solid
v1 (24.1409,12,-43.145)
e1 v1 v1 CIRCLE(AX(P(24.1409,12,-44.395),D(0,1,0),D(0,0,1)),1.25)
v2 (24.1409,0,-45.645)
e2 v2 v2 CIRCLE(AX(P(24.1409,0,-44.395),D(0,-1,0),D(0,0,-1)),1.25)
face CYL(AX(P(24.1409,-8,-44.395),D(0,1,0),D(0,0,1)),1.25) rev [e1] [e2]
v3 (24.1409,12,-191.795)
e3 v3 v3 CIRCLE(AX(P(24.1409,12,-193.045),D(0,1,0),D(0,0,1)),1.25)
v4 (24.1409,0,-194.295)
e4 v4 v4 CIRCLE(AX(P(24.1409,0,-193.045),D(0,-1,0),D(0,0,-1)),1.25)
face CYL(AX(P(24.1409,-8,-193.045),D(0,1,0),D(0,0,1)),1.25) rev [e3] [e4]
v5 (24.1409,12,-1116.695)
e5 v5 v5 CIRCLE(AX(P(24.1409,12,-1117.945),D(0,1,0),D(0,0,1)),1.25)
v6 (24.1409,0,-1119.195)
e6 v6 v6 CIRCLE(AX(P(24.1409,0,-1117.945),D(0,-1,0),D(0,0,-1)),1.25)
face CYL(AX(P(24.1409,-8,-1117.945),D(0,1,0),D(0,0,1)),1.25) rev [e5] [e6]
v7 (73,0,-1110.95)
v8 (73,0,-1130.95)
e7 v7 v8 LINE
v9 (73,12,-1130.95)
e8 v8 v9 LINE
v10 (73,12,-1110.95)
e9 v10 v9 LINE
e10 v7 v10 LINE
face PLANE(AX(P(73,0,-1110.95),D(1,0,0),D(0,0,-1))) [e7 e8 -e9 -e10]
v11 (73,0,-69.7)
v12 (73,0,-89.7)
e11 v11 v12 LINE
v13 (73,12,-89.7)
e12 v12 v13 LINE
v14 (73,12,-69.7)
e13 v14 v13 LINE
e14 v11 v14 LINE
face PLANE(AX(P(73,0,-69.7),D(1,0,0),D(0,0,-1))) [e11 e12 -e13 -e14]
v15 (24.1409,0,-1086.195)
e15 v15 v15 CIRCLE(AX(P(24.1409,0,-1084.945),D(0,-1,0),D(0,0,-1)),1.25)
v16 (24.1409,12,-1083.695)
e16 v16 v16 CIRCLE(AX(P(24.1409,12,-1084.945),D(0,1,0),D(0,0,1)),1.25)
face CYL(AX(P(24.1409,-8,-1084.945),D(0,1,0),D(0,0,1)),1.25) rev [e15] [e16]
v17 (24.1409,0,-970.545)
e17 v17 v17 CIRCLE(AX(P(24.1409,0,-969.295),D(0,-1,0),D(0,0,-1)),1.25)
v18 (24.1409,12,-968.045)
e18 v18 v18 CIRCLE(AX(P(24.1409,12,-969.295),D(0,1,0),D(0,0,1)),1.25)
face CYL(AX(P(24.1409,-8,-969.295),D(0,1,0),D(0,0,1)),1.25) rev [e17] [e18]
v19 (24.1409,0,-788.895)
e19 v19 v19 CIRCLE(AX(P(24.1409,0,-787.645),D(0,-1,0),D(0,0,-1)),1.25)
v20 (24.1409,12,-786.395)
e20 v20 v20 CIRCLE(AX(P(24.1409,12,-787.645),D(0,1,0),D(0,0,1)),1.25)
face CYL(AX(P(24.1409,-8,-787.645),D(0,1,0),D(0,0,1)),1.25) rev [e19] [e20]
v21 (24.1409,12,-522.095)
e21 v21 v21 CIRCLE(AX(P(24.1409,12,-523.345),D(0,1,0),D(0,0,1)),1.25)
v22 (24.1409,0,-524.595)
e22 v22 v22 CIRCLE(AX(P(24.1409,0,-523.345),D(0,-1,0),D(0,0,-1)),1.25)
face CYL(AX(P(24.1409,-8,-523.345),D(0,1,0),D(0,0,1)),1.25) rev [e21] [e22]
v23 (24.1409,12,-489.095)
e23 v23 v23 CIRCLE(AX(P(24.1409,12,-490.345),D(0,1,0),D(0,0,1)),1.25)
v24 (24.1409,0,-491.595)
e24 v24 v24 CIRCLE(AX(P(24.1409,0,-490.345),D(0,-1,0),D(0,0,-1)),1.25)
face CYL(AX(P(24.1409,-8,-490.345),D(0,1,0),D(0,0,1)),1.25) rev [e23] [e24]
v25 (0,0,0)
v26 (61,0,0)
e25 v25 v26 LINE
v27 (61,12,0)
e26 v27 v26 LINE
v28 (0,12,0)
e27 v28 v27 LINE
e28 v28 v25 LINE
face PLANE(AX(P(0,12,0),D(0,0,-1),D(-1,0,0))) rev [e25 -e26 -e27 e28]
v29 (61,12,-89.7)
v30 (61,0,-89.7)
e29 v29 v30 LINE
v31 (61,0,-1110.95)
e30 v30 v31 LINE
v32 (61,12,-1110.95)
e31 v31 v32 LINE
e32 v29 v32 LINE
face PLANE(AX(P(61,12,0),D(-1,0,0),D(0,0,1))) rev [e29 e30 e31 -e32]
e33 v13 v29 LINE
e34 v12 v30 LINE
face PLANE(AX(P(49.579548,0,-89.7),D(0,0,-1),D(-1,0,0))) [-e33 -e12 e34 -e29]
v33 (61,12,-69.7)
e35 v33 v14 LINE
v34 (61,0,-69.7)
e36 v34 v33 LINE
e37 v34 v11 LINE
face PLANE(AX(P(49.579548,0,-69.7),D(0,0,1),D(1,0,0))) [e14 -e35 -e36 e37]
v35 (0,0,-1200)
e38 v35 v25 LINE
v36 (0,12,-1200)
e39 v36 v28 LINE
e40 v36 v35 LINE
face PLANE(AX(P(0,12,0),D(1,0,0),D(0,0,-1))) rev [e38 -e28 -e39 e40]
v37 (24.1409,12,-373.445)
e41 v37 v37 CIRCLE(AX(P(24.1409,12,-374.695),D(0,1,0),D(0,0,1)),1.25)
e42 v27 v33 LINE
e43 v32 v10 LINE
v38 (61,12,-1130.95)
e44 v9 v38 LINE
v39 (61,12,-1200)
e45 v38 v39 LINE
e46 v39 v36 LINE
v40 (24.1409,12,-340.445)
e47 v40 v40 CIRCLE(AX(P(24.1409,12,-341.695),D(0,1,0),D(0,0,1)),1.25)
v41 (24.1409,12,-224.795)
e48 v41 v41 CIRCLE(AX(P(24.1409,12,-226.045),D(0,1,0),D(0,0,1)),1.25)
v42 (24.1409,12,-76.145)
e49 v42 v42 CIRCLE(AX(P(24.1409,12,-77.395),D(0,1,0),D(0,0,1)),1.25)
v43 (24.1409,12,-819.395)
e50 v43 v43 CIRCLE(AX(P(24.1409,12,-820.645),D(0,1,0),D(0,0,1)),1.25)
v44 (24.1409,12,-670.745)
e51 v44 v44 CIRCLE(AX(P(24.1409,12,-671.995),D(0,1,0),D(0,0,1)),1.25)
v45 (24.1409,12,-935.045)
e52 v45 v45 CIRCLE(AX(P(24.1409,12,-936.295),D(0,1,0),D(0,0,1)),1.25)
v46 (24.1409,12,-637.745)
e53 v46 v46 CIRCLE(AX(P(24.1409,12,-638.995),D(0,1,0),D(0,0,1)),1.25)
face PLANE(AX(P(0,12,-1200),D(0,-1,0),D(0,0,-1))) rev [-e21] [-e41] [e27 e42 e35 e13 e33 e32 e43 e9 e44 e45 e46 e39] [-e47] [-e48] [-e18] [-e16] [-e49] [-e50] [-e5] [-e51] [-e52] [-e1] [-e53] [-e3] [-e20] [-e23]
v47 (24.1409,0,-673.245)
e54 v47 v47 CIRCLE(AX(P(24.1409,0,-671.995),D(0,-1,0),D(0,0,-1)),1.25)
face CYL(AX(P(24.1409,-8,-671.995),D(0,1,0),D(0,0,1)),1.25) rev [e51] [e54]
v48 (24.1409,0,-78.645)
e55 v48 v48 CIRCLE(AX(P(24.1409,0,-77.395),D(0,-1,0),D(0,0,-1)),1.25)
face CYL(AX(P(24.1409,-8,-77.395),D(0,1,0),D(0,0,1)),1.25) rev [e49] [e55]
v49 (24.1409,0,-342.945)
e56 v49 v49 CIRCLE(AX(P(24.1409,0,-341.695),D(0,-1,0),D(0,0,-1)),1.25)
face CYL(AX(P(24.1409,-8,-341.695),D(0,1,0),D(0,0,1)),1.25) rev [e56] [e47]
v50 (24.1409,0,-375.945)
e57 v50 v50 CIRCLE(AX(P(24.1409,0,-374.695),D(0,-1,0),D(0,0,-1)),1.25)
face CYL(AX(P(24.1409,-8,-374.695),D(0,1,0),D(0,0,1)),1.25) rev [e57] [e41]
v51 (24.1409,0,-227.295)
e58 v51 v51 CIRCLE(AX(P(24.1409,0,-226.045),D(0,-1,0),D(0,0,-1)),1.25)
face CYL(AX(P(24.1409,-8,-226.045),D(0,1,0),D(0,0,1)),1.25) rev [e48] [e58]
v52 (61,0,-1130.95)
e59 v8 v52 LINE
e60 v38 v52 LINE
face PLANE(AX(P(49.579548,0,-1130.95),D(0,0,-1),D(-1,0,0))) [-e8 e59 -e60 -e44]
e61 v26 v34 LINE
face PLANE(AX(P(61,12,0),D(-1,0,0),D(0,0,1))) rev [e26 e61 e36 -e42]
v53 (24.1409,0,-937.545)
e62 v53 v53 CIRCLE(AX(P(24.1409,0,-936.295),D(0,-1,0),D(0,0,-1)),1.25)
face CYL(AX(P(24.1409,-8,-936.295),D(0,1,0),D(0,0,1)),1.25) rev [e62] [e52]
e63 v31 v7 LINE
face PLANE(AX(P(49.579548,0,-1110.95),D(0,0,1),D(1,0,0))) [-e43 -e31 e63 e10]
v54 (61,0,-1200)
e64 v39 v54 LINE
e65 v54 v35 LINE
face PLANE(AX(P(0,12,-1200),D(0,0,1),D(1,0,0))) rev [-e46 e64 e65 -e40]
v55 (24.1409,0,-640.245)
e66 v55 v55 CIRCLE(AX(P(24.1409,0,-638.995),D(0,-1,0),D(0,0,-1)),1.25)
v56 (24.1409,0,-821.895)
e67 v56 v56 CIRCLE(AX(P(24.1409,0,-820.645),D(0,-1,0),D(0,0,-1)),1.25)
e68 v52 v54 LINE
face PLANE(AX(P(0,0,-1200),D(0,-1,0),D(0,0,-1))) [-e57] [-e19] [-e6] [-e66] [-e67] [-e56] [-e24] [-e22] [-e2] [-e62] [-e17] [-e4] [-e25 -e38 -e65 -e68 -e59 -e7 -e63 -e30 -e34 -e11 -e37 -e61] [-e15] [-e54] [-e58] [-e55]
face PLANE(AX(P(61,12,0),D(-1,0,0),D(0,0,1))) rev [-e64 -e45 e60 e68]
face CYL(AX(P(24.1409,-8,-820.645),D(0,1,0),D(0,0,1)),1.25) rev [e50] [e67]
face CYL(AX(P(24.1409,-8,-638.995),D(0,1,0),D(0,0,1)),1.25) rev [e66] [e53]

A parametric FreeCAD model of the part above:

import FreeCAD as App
import Part
import Sketcher
Q = App.Units.Quantity

doc = App.newDocument("Part")
params = doc.addObject("Spreadsheet::Sheet", "Params")
for row, (alias, value) in enumerate([
    ("sketch1_width", "61 mm"),
    ("sketch1_height", "1200 mm"),
    ("pad1_length", "12 mm"),
    ("sketch2_diameter", "2.5 mm"),
    ("pocket1_length", "20 mm"),
    ("sketch3_height", "20 mm"),
    ("pad2_length", "12 mm"),
], start=1):
    params.set(f"A{row}", alias)
    params.set(f"B{row}", "=" + value)
    params.setAlias(f"B{row}", alias)

body = doc.addObject("PartDesign::Body", "Body")

sketch1 = body.newObject("Sketcher::SketchObject", "Sketch")
sketch1.AttachmentSupport = (doc.getObject("XZ_Plane"), [""])
sketch1.MapMode = "FlatFace"
sketch1.addGeometry(Part.LineSegment(App.Vector(0, -1200, 0), App.Vector(0, 0, 0)), False)
sketch1.addGeometry(Part.LineSegment(App.Vector(0, 0, 0), App.Vector(61, 0, 0)), False)
sketch1.addGeometry(Part.LineSegment(App.Vector(61, 0, 0), App.Vector(61, -1200, 0)), False)
sketch1.addGeometry(Part.LineSegment(App.Vector(61, -1200, 0), App.Vector(0, -1200, 0)), False)
sketch1.addConstraint(Sketcher.Constraint("Coincident", 0, 2, 1, 1))
sketch1.addConstraint(Sketcher.Constraint("Coincident", 1, 2, 2, 1))
sketch1.addConstraint(Sketcher.Constraint("Coincident", 2, 2, 3, 1))
sketch1.addConstraint(Sketcher.Constraint("Coincident", 3, 2, 0, 1))
sketch1.addConstraint(Sketcher.Constraint("Vertical", 0))
sketch1.addConstraint(Sketcher.Constraint("Horizontal", 1))
sketch1.addConstraint(Sketcher.Constraint("Vertical", 2))
sketch1.addConstraint(Sketcher.Constraint("Horizontal", 3))
sketch1.addConstraint(Sketcher.Constraint("Coincident", 0, 2, -1, 1))
sketch1.addConstraint(Sketcher.Constraint("DistanceX", 1, 1, 1, 2, Q("61 mm")))
sketch1.addConstraint(Sketcher.Constraint("DistanceY", 0, 1, 0, 2, Q("1200 mm")))
sketch1.setExpression("Constraints[9]", "Params.sketch1_width")
sketch1.setExpression("Constraints[10]", "Params.sketch1_height")
pad1 = body.newObject("PartDesign::Pad", "Pad")
pad1.Profile = sketch1
pad1.setExpression("Length", "Params.pad1_length")
pad1.Reversed = True

sketch2 = body.newObject("Sketcher::SketchObject", "Sketch001")
sketch2.AttachmentSupport = (doc.getObject("XZ_Plane"), [""])
sketch2.MapMode = "FlatFace"
sketch2.AttachmentOffset = App.Placement(App.Vector(0, 0, -12), App.Rotation())
sketch2.addGeometry(Part.Circle(App.Vector(24.1, -77.4, 0), App.Vector(0, 0, 1), 1.2), False)
sketch2.addGeometry(Part.Circle(App.Vector(24.1, -44.4, 0), App.Vector(0, 0, 1), 1.2), False)
sketch2.addGeometry(Part.Circle(App.Vector(24.1, -226, 0), App.Vector(0, 0, 1), 1.2), False)
sketch2.addGeometry(Part.Circle(App.Vector(24.1, -193, 0), App.Vector(0, 0, 1), 1.2), False)
sketch2.addGeometry(Part.Circle(App.Vector(24.1, -374.7, 0), App.Vector(0, 0, 1), 1.2), False)
sketch2.addGeometry(Part.Circle(App.Vector(24.1, -341.7, 0), App.Vector(0, 0, 1), 1.2), False)
sketch2.addGeometry(Part.Circle(App.Vector(24.1, -523.3, 0), App.Vector(0, 0, 1), 1.2), False)
sketch2.addGeometry(Part.Circle(App.Vector(24.1, -490.3, 0), App.Vector(0, 0, 1), 1.2), False)
sketch2.addGeometry(Part.Circle(App.Vector(24.1, -672, 0), App.Vector(0, 0, 1), 1.2), False)
sketch2.addGeometry(Part.Circle(App.Vector(24.1, -639, 0), App.Vector(0, 0, 1), 1.2), False)
sketch2.addGeometry(Part.Circle(App.Vector(24.1, -820.6, 0), App.Vector(0, 0, 1), 1.2), False)
sketch2.addGeometry(Part.Circle(App.Vector(24.1, -787.6, 0), App.Vector(0, 0, 1), 1.2), False)
sketch2.addGeometry(Part.Circle(App.Vector(24.1, -969.3, 0), App.Vector(0, 0, 1), 1.2), False)
sketch2.addGeometry(Part.Circle(App.Vector(24.1, -936.3, 0), App.Vector(0, 0, 1), 1.2), False)
sketch2.addGeometry(Part.Circle(App.Vector(24.1, -1117.9, 0), App.Vector(0, 0, 1), 1.2), False)
sketch2.addGeometry(Part.Circle(App.Vector(24.1, -1084.9, 0), App.Vector(0, 0, 1), 1.2), False)
sketch2.addConstraint(Sketcher.Constraint("Equal", 0, 1))
sketch2.addConstraint(Sketcher.Constraint("Equal", 1, 2))
sketch2.addConstraint(Sketcher.Constraint("Equal", 2, 3))
sketch2.addConstraint(Sketcher.Constraint("Equal", 3, 4))
sketch2.addConstraint(Sketcher.Constraint("Equal", 4, 5))
sketch2.addConstraint(Sketcher.Constraint("Equal", 5, 6))
sketch2.addConstraint(Sketcher.Constraint("Equal", 6, 7))
sketch2.addConstraint(Sketcher.Constraint("Equal", 7, 8))
sketch2.addConstraint(Sketcher.Constraint("Equal", 8, 9))
sketch2.addConstraint(Sketcher.Constraint("Equal", 9, 10))
sketch2.addConstraint(Sketcher.Constraint("Equal", 10, 11))
sketch2.addConstraint(Sketcher.Constraint("Equal", 11, 12))
sketch2.addConstraint(Sketcher.Constraint("Equal", 12, 13))
sketch2.addConstraint(Sketcher.Constraint("Equal", 13, 14))
sketch2.addConstraint(Sketcher.Constraint("Equal", 14, 15))
sketch2.addConstraint(Sketcher.Constraint("Vertical", 0, 3, 1, 3))
sketch2.addConstraint(Sketcher.Constraint("Vertical", 1, 3, 2, 3))
sketch2.addConstraint(Sketcher.Constraint("Vertical", 2, 3, 3, 3))
sketch2.addConstraint(Sketcher.Constraint("Vertical", 3, 3, 4, 3))
sketch2.addConstraint(Sketcher.Constraint("Vertical", 4, 3, 5, 3))
sketch2.addConstraint(Sketcher.Constraint("Vertical", 5, 3, 6, 3))
sketch2.addConstraint(Sketcher.Constraint("Vertical", 6, 3, 7, 3))
sketch2.addConstraint(Sketcher.Constraint("Vertical", 7, 3, 8, 3))
sketch2.addConstraint(Sketcher.Constraint("Vertical", 8, 3, 9, 3))
sketch2.addConstraint(Sketcher.Constraint("Vertical", 9, 3, 10, 3))
sketch2.addConstraint(Sketcher.Constraint("Vertical", 10, 3, 11, 3))
sketch2.addConstraint(Sketcher.Constraint("Vertical", 11, 3, 12, 3))
sketch2.addConstraint(Sketcher.Constraint("Vertical", 12, 3, 13, 3))
sketch2.addConstraint(Sketcher.Constraint("Vertical", 13, 3, 14, 3))
sketch2.addConstraint(Sketcher.Constraint("Vertical", 14, 3, 15, 3))
sketch2.addConstraint(Sketcher.Constraint("Diameter", 0, Q("2.5 mm")))
sketch2.addConstraint(Sketcher.Constraint("DistanceY", 0, 3, 1, 3, Q("33 mm")))
sketch2.addConstraint(Sketcher.Constraint("DistanceY", 2, 3, 3, 3, Q("33 mm")))
sketch2.addConstraint(Sketcher.Constraint("DistanceY", 4, 3, 5, 3, Q("33 mm")))
sketch2.addConstraint(Sketcher.Constraint("DistanceY", 6, 3, 7, 3, Q("33 mm")))
sketch2.addConstraint(Sketcher.Constraint("DistanceY", 8, 3, 9, 3, Q("33 mm")))
sketch2.addConstraint(Sketcher.Constraint("DistanceY", 10, 3, 11, 3, Q("33 mm")))
sketch2.addConstraint(Sketcher.Constraint("DistanceY", 12, 3, 13, 3, Q("33 mm")))
sketch2.addConstraint(Sketcher.Constraint("DistanceY", 14, 3, 15, 3, Q("33 mm")))
sketch2.addConstraint(Sketcher.Constraint("DistanceY", 4, 3, 0, 3, Q("297.3 mm")))
sketch2.addConstraint(Sketcher.Constraint("DistanceY", 6, 3, 2, 3, Q("297.3 mm")))
sketch2.addConstraint(Sketcher.Constraint("DistanceY", 8, 3, 4, 3, Q("297.3 mm")))
sketch2.addConstraint(Sketcher.Constraint("DistanceY", 10, 3, 6, 3, Q("297.3 mm")))
sketch2.addConstraint(Sketcher.Constraint("DistanceY", 12, 3, 8, 3, Q("297.3 mm")))
sketch2.addConstraint(Sketcher.Constraint("DistanceY", 14, 3, 10, 3, Q("297.3 mm")))
sketch2.addConstraint(Sketcher.Constraint("DistanceY", 2, 3, 0, 3, Q("148.65 mm")))
sketch2.addConstraint(Sketcher.Constraint("DistanceY", 0, 3, -1, 1, Q("77.395 mm")))
sketch2.addConstraint(Sketcher.Constraint("DistanceX", -1, 1, 0, 3, Q("24.1409 mm")))
sketch2.setExpression("Constraints[30]", "Params.sketch2_diameter")
pocket1 = body.newObject("PartDesign::Pocket", "Pocket")
pocket1.Profile = sketch2
pocket1.setExpression("Length", "Params.pocket1_length")
pocket1.Reversed = True

sketch3 = body.newObject("Sketcher::SketchObject", "Sketch002")
sketch3.AttachmentSupport = (doc.getObject("XZ_Plane"), [""])
sketch3.MapMode = "FlatFace"
sketch3.AttachmentOffset = App.Placement(App.Vector(0, 0, -12), App.Rotation())
sketch3.addGeometry(Part.LineSegment(App.Vector(50, -90, 0), App.Vector(50, -70, 0)), False)
sketch3.addGeometry(Part.LineSegment(App.Vector(50, -70, 0), App.Vector(73, -70, 0)), False)
sketch3.addGeometry(Part.LineSegment(App.Vector(73, -70, 0), App.Vector(73, -90, 0)), False)
sketch3.addGeometry(Part.LineSegment(App.Vector(73, -90, 0), App.Vector(50, -90, 0)), False)
sketch3.addGeometry(Part.LineSegment(App.Vector(50, -1131, 0), App.Vector(50, -1111, 0)), False)
sketch3.addGeometry(Part.LineSegment(App.Vector(50, -1111, 0), App.Vector(73, -1111, 0)), False)
sketch3.addGeometry(Part.LineSegment(App.Vector(73, -1111, 0), App.Vector(73, -1131, 0)), False)
sketch3.addGeometry(Part.LineSegment(App.Vector(73, -1131, 0), App.Vector(50, -1131, 0)), False)
sketch3.addConstraint(Sketcher.Constraint("Coincident", 0, 2, 1, 1))
sketch3.addConstraint(Sketcher.Constraint("Coincident", 1, 2, 2, 1))
sketch3.addConstraint(Sketcher.Constraint("Coincident", 2, 2, 3, 1))
sketch3.addConstraint(Sketcher.Constraint("Coincident", 3, 2, 0, 1))
sketch3.addConstraint(Sketcher.Constraint("Coincident", 4, 2, 5, 1))
sketch3.addConstraint(Sketcher.Constraint("Coincident", 5, 2, 6, 1))
sketch3.addConstraint(Sketcher.Constraint("Coincident", 6, 2, 7, 1))
sketch3.addConstraint(Sketcher.Constraint("Coincident", 7, 2, 4, 1))
sketch3.addConstraint(Sketcher.Constraint("Vertical", 0))
sketch3.addConstraint(Sketcher.Constraint("Horizontal", 1))
sketch3.addConstraint(Sketcher.Constraint("Vertical", 2))
sketch3.addConstraint(Sketcher.Constraint("Horizontal", 3))
sketch3.addConstraint(Sketcher.Constraint("Vertical", 4))
sketch3.addConstraint(Sketcher.Constraint("Horizontal", 5))
sketch3.addConstraint(Sketcher.Constraint("Vertical", 6))
sketch3.addConstraint(Sketcher.Constraint("Horizontal", 7))
sketch3.addConstraint(Sketcher.Constraint("Vertical", 3, 2, 4, 2))
sketch3.addConstraint(Sketcher.Constraint("Vertical", 2, 2, 5, 2))
sketch3.addConstraint(Sketcher.Constraint("Equal", 2, 4))
sketch3.addConstraint(Sketcher.Constraint("DistanceY", 0, 1, 0, 2, Q("20 mm")))
sketch3.addConstraint(Sketcher.Constraint("DistanceX", -1, 1, 1, 2, Q("73 mm")))
sketch3.addConstraint(Sketcher.Constraint("DistanceY", 0, 2, -1, 1, Q("69.7 mm")))
sketch3.addConstraint(Sketcher.Constraint("DistanceY", 4, 2, -1, 1, Q("1110.95 mm")))
sketch3.addConstraint(Sketcher.Constraint("DistanceX", 1, 1, 1, 2, Q("23.420452 mm")))
sketch3.setExpression("Constraints[19]", "Params.sketch3_height")
pad2 = body.newObject("PartDesign::Pad", "Pad001")
pad2.Profile = sketch3
pad2.setExpression("Length", "Params.pad2_length")

doc.recompute()
